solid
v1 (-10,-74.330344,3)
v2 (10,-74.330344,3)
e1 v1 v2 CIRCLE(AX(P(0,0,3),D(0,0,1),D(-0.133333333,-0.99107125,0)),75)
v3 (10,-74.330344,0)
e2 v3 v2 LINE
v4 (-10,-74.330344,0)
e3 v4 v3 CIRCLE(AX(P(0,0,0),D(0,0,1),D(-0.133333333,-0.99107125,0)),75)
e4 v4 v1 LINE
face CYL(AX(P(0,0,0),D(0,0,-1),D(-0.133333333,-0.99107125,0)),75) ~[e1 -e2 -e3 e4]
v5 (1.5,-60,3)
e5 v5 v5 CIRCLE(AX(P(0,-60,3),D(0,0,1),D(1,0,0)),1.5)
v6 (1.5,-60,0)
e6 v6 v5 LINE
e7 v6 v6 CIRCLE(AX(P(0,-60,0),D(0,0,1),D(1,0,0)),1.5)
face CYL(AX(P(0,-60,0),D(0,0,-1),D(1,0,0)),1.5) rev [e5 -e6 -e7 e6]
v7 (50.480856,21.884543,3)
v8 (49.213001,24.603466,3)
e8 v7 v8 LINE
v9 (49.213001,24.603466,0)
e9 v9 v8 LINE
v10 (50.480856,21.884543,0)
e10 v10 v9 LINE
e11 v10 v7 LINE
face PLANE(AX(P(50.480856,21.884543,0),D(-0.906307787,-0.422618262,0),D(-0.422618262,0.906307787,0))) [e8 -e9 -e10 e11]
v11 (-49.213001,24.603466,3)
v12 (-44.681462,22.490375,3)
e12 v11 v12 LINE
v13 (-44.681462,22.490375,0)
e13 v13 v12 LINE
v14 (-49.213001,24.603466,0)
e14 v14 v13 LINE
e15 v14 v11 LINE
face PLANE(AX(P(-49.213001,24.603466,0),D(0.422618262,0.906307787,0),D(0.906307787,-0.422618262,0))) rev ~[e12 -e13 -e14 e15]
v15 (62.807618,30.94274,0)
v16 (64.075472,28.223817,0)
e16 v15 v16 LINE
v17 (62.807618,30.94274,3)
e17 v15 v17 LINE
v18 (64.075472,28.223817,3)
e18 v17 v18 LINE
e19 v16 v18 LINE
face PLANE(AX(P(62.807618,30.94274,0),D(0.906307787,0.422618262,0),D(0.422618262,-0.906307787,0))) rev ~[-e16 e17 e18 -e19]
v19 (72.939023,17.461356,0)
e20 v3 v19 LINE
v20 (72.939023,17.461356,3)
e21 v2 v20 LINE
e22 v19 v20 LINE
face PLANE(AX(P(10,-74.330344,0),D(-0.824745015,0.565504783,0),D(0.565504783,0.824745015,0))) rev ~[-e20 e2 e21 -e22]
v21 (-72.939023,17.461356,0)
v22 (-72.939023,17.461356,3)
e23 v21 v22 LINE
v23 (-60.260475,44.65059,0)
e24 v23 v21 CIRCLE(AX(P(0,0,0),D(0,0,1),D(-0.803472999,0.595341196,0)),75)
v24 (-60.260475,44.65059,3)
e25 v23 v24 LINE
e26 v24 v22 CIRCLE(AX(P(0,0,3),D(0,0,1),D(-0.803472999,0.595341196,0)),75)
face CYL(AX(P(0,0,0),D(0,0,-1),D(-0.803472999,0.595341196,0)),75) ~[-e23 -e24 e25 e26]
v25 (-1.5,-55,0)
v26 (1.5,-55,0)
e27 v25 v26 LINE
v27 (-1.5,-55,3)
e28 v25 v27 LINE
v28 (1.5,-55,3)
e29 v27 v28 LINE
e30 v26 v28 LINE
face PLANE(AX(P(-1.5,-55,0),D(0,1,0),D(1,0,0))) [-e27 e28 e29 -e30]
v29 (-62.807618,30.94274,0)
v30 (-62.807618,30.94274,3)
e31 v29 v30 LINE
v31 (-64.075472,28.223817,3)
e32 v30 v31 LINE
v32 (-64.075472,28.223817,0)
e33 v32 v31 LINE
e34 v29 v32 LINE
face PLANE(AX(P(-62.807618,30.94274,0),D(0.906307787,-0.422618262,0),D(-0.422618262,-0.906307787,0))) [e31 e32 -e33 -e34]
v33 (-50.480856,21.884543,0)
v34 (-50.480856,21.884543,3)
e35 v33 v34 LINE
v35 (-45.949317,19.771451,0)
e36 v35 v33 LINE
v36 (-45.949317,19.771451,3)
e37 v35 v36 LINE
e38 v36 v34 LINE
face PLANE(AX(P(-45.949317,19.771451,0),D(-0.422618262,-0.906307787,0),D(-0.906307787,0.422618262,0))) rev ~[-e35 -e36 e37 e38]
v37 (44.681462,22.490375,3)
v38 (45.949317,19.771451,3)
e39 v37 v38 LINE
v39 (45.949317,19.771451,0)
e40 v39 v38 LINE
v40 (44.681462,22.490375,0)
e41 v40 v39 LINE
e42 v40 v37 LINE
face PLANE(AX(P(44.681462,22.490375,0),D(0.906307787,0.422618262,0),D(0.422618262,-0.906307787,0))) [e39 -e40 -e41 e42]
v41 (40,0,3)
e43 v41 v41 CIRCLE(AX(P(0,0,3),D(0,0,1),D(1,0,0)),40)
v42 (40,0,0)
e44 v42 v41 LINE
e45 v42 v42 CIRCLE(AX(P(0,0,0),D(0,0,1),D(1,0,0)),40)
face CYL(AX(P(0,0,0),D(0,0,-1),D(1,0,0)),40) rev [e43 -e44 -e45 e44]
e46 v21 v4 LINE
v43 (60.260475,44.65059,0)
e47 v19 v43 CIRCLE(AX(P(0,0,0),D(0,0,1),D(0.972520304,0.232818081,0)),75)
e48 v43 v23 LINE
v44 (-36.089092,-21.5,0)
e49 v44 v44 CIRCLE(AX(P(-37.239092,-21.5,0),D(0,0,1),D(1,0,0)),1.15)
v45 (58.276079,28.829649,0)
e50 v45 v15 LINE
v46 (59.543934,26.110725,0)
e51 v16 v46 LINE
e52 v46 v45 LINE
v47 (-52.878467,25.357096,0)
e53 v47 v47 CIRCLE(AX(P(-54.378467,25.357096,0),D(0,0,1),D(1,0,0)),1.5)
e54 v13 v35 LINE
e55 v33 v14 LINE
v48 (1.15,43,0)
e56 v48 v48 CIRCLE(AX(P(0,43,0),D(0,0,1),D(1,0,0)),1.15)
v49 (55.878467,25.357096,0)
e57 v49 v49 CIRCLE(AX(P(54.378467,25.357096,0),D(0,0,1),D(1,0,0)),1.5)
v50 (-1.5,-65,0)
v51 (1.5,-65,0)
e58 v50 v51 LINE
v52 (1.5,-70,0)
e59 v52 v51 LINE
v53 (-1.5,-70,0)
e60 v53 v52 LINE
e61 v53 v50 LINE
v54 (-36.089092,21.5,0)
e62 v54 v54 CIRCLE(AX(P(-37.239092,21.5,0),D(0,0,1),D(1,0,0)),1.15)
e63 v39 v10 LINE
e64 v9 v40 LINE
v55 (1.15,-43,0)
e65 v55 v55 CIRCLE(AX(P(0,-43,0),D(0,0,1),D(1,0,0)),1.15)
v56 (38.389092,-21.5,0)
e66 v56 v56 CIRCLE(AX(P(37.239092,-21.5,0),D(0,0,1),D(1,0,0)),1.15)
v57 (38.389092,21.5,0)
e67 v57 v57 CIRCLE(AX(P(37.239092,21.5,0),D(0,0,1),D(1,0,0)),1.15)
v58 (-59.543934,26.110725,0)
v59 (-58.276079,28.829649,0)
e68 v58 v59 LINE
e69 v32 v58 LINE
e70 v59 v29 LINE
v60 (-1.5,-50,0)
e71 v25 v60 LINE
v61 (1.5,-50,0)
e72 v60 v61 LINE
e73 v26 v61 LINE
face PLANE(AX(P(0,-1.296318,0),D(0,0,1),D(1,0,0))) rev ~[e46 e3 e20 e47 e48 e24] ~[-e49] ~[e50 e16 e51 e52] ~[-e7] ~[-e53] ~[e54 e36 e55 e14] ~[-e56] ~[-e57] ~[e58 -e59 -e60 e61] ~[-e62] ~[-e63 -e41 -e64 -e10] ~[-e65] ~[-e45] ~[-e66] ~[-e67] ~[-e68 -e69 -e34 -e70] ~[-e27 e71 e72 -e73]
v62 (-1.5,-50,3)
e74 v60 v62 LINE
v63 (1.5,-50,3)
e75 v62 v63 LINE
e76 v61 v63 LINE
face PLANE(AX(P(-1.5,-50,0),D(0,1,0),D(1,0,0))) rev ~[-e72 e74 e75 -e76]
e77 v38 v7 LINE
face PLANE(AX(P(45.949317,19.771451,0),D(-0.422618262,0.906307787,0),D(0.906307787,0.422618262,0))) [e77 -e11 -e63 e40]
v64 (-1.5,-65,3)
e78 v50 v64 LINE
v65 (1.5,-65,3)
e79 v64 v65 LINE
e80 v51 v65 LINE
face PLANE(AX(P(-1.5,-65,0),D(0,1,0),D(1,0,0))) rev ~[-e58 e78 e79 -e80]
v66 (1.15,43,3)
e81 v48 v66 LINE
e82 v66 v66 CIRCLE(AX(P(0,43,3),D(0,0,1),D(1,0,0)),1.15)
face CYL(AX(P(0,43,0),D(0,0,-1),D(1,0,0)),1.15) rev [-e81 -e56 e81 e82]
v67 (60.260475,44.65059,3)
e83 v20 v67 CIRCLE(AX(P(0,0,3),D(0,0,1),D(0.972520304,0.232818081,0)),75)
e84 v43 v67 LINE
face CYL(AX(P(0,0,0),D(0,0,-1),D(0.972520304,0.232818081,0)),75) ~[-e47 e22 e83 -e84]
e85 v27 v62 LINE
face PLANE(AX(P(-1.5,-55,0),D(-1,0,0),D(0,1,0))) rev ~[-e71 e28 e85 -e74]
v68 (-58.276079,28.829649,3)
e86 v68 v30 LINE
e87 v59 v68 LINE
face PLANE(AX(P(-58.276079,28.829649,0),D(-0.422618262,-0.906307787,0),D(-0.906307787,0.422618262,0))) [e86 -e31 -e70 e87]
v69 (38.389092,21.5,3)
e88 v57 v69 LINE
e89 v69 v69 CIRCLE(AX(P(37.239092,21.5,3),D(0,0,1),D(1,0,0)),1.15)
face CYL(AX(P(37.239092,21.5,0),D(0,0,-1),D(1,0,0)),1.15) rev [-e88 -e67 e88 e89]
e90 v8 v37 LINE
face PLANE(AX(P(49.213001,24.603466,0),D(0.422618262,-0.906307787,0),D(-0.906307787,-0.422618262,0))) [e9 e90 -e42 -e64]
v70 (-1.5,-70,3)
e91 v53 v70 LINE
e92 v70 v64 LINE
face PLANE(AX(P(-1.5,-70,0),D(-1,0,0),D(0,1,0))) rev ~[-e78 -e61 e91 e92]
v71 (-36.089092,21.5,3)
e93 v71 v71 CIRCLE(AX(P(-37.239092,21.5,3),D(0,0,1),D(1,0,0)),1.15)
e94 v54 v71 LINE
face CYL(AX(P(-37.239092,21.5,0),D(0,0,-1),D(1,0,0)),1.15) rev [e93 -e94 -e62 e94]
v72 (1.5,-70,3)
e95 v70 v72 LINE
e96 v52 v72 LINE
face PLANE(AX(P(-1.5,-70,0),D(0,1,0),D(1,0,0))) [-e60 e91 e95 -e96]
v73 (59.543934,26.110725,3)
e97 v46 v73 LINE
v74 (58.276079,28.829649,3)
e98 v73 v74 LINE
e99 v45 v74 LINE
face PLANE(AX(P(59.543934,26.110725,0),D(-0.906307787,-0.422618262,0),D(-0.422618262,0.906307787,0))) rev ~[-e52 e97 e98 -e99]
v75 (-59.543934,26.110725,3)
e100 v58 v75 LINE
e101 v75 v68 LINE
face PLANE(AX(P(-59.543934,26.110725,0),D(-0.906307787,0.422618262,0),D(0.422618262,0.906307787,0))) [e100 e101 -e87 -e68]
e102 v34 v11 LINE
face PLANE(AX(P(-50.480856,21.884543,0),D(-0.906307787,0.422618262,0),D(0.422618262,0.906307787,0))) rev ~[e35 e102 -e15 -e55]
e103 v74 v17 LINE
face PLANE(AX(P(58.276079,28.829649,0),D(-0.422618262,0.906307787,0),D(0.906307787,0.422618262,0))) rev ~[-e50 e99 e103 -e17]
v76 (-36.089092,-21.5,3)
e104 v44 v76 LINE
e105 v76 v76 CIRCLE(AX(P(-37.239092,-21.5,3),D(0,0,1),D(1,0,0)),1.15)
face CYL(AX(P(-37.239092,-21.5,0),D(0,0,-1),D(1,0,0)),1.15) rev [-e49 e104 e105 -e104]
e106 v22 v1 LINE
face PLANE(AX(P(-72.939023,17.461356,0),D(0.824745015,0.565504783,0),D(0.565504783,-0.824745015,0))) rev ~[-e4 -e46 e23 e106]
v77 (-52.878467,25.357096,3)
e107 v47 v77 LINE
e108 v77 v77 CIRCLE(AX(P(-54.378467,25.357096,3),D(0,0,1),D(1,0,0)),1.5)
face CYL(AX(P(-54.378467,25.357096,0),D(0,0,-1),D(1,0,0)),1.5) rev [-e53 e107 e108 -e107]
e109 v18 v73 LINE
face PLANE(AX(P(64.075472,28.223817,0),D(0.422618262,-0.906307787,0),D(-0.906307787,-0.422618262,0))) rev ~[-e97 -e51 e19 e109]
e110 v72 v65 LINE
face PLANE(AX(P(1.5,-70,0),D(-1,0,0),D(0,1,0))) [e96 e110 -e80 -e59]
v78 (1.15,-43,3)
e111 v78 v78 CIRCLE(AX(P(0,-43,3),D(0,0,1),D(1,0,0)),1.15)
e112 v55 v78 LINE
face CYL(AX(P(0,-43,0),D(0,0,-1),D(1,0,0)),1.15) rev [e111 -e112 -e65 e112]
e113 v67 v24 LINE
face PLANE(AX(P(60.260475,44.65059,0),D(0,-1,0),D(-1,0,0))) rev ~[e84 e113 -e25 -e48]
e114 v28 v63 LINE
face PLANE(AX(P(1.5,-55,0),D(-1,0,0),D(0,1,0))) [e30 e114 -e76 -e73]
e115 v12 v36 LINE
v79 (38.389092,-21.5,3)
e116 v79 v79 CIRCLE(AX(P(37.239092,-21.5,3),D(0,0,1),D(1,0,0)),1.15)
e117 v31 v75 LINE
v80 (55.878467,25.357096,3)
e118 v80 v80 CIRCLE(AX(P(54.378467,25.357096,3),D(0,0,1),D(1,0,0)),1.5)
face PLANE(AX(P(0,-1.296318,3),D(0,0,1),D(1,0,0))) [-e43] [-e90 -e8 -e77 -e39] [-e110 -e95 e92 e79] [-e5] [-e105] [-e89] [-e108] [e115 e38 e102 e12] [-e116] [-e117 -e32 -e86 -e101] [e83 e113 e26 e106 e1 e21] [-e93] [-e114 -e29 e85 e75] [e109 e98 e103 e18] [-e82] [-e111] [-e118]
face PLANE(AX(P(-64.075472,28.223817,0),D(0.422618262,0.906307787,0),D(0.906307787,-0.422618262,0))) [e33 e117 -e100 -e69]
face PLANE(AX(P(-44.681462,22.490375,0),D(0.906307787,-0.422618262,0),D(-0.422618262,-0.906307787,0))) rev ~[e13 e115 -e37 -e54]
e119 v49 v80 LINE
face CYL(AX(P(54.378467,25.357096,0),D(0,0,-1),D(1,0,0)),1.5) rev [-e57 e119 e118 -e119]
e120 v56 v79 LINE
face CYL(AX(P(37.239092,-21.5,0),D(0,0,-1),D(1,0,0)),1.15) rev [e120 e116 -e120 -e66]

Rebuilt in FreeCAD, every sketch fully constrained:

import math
import FreeCAD as App
import Part
import Sketcher

V = App.Vector
Q = App.Units.Quantity


def add_polygon(sketch, points):
    """Adds a closed chain of lines whose ends are joined by coincident constraints."""
    first, n = sketch.GeometryCount, len(points)
    for a, b in zip(points, points[1:] + points[:1]):
        sketch.addGeometry(Part.LineSegment(App.Vector(*a, 0), App.Vector(*b, 0)), False)
    for i in range(n):
        sketch.addConstraint(Sketcher.Constraint("Coincident", first + i, 2, first + (i + 1) % n, 1))

doc = App.newDocument("Part")
body = doc.addObject("PartDesign::Body", "Body")

# Sketch on XY plane
sketch1 = body.newObject("Sketcher::SketchObject", "Sketch")
sketch1.AttachmentSupport = (doc.getObject("XY_Plane"), [""])
sketch1.MapMode = "FlatFace"
sketch1.addGeometry(Part.LineSegment(V(-72.939023, 17.461356, 0), V(-10, -74.330344, 0)), False)  # 0
sketch1.addGeometry(Part.ArcOfCircle(Part.Circle(V(0, 0, 0), V(0, 0, 1), 75), math.radians(-97.662256), math.radians(-82.337744)), False)  # 1
sketch1.addGeometry(Part.LineSegment(V(10, -74.330344, 0), V(72.939023, 17.461356, 0)), False)  # 2
sketch1.addGeometry(Part.ArcOfCircle(Part.Circle(V(0, 0, 0), V(0, 0, 1), 75), math.radians(13.463041), math.radians(36.536959)), False)  # 3
sketch1.addGeometry(Part.LineSegment(V(60.260475, 44.65059, 0), V(-60.260475, 44.65059, 0)), False)  # 4
sketch1.addGeometry(Part.ArcOfCircle(Part.Circle(V(0, 0, 0), V(0, 0, 1), 75), math.radians(143.463041), math.radians(166.536959)), False)  # 5
sketch1.addGeometry(Part.Circle(V(-37.239092, -21.5, 0), V(0, 0, 1), 1.15), False)  # 6
add_polygon(sketch1, [(1.5, -70), (-1.5, -70), (-1.5, -65), (1.5, -65)])  # lines 7-10
sketch1.addGeometry(Part.Circle(V(0, -60, 0), V(0, 0, 1), 1.5), False)  # 11
add_polygon(sketch1, [(1.5, -55), (-1.5, -55), (-1.5, -50), (1.5, -50)])  # lines 12-15
sketch1.addGeometry(Part.Circle(V(0, -43, 0), V(0, 0, 1), 1.15), False)  # 16
sketch1.addGeometry(Part.Circle(V(37.239092, -21.5, 0), V(0, 0, 1), 1.15), False)  # 17
add_polygon(sketch1, [(-62.807618, 30.94274), (-58.276079, 28.829649), (-59.543934, 26.110725), (-64.075472, 28.223817)])  # lines 18-21
sketch1.addGeometry(Part.Circle(V(-54.378467, 25.357096, 0), V(0, 0, 1), 1.5), False)  # 22
add_polygon(sketch1, [(-50.480856, 21.884543), (-49.213001, 24.603466), (-44.681462, 22.490375), (-45.949317, 19.771451)])  # lines 23-26
sketch1.addGeometry(Part.Circle(V(-37.239092, 21.5, 0), V(0, 0, 1), 1.15), False)  # 27
sketch1.addGeometry(Part.Circle(V(0, 0, 0), V(0, 0, 1), 40), False)  # 28
sketch1.addGeometry(Part.Circle(V(0, 43, 0), V(0, 0, 1), 1.15), False)  # 29
sketch1.addGeometry(Part.Circle(V(37.239092, 21.5, 0), V(0, 0, 1), 1.15), False)  # 30
add_polygon(sketch1, [(44.681462, 22.490375), (49.213001, 24.603466), (50.480856, 21.884543), (45.949317, 19.771451)])  # lines 31-34
sketch1.addGeometry(Part.Circle(V(54.378467, 25.357096, 0), V(0, 0, 1), 1.5), False)  # 35
add_polygon(sketch1, [(59.543934, 26.110725), (58.276079, 28.829649), (62.807618, 30.94274), (64.075472, 28.223817)])  # lines 36-39
sketch1.addConstraint(Sketcher.Constraint("Coincident", 0, 2, 1, 1))
sketch1.addConstraint(Sketcher.Constraint("Coincident", 1, 2, 2, 1))
sketch1.addConstraint(Sketcher.Constraint("Coincident", 2, 2, 3, 1))
sketch1.addConstraint(Sketcher.Constraint("Coincident", 3, 2, 4, 1))
sketch1.addConstraint(Sketcher.Constraint("Coincident", 4, 2, 5, 1))
sketch1.addConstraint(Sketcher.Constraint("Coincident", 5, 2, 0, 1))
sketch1.addConstraint(Sketcher.Constraint("Horizontal", 4))
sketch1.addConstraint(Sketcher.Constraint("Horizontal", 7))
sketch1.addConstraint(Sketcher.Constraint("Vertical", 8))
sketch1.addConstraint(Sketcher.Constraint("Horizontal", 9))
sketch1.addConstraint(Sketcher.Constraint("Vertical", 10))
sketch1.addConstraint(Sketcher.Constraint("Horizontal", 12))
sketch1.addConstraint(Sketcher.Constraint("Vertical", 13))
sketch1.addConstraint(Sketcher.Constraint("Horizontal", 14))
sketch1.addConstraint(Sketcher.Constraint("Vertical", 15))
sketch1.addConstraint(Sketcher.Constraint("Coincident", 1, 3, -1, 1))
sketch1.addConstraint(Sketcher.Constraint("Coincident", 3, 3, -1, 1))
sketch1.addConstraint(Sketcher.Constraint("Coincident", 5, 3, -1, 1))
sketch1.addConstraint(Sketcher.Constraint("Coincident", 28, 3, -1, 1))
sketch1.addConstraint(Sketcher.Constraint("Equal", 1, 3))
sketch1.addConstraint(Sketcher.Constraint("Equal", 3, 5))
sketch1.addConstraint(Sketcher.Constraint("Equal", 6, 16))
sketch1.addConstraint(Sketcher.Constraint("Equal", 16, 17))
sketch1.addConstraint(Sketcher.Constraint("Equal", 11, 22))
sketch1.addConstraint(Sketcher.Constraint("Equal", 17, 27))
sketch1.addConstraint(Sketcher.Constraint("Equal", 27, 29))
sketch1.addConstraint(Sketcher.Constraint("Equal", 29, 30))
sketch1.addConstraint(Sketcher.Constraint("Equal", 22, 35))
sketch1.addConstraint(Sketcher.Constraint("Symmetric", 17, 3, 27, 3, -1, 1))
sketch1.addConstraint(Sketcher.Constraint("Symmetric", 16, 3, 29, 3, -1, 1))
sketch1.addConstraint(Sketcher.Constraint("Symmetric", 6, 3, 30, 3, -1, 1))
sketch1.addConstraint(Sketcher.Constraint("Symmetric", 6, 3, 17, 3, -2))
sketch1.addConstraint(Sketcher.Constraint("Symmetric", 22, 3, 35, 3, -2))
sketch1.addConstraint(Sketcher.Constraint("Symmetric", 23, 2, 31, 2, -2))
sketch1.addConstraint(Sketcher.Constraint("Symmetric", 26, 2, 32, 2, -2))
sketch1.addConstraint(Sketcher.Constraint("Symmetric", 25, 2, 33, 2, -2))
sketch1.addConstraint(Sketcher.Constraint("Symmetric", 24, 2, 34, 2, -2))
sketch1.addConstraint(Sketcher.Constraint("Symmetric", 18, 2, 36, 2, -2))
sketch1.addConstraint(Sketcher.Constraint("Symmetric", 21, 2, 37, 2, -2))
sketch1.addConstraint(Sketcher.Constraint("Symmetric", 20, 2, 38, 2, -2))
sketch1.addConstraint(Sketcher.Constraint("Symmetric", 19, 2, 39, 2, -2))
sketch1.addConstraint(Sketcher.Constraint("PointOnObject", 11, 3, -2))
sketch1.addConstraint(Sketcher.Constraint("PointOnObject", 16, 3, -2))
sketch1.addConstraint(Sketcher.Constraint("Perpendicular", 18, 19))
sketch1.addConstraint(Sketcher.Constraint("Perpendicular", 19, 20))
sketch1.addConstraint(Sketcher.Constraint("Perpendicular", 20, 21))
sketch1.addConstraint(Sketcher.Constraint("Parallel", 21, 23))
sketch1.addConstraint(Sketcher.Constraint("Perpendicular", 23, 24))
sketch1.addConstraint(Sketcher.Constraint("Perpendicular", 24, 25))
sketch1.addConstraint(Sketcher.Constraint("Perpendicular", 25, 26))
sketch1.addConstraint(Sketcher.Constraint("Horizontal", 0, 2, 1, 2))
sketch1.addConstraint(Sketcher.Constraint("Horizontal", 2, 2, 5, 2))
sketch1.addConstraint(Sketcher.Constraint("Vertical", 8, 2, 12, 2))
sketch1.addConstraint(Sketcher.Constraint("Vertical", 10, 2, 14, 2))
sketch1.addConstraint(Sketcher.Constraint("Equal", 10, 13))
sketch1.addConstraint(Sketcher.Constraint("Equal", 21, 23))
sketch1.addConstraint(Sketcher.Constraint("Equal", 20, 24))
sketch1.addConstraint(Sketcher.Constraint("Diameter", 11, Q("3 mm")))
sketch1.addConstraint(Sketcher.Constraint("Diameter", 28, Q("80 mm")))
sketch1.addConstraint(Sketcher.Constraint("Radius", 1, Q("75 mm")))
sketch1.addConstraint(Sketcher.Constraint("Diameter", 6, Q("2.3 mm")))
sketch1.addConstraint(Sketcher.Constraint("DistanceX", 7, 2, 7, 1, Q("3 mm")))
sketch1.addConstraint(Sketcher.Constraint("DistanceY", 8, 1, 8, 2, Q("5 mm")))
sketch1.addConstraint(Sketcher.Constraint("Angle", 18, Q("-25 deg")))
sketch1.addConstraint(Sketcher.Constraint("Distance", 18, Q("5 mm")))
sketch1.addConstraint(Sketcher.Constraint("Distance", 19, Q("3 mm")))
sketch1.addConstraint(Sketcher.Constraint("DistanceY", 11, 3, -1, 1, Q("60 mm")))
sketch1.addConstraint(Sketcher.Constraint("DistanceY", 16, 3, -1, 1, Q("43 mm")))
sketch1.addConstraint(Sketcher.Constraint("DistanceX", 0, 2, -1, 1, Q("10 mm")))
sketch1.addConstraint(Sketcher.Constraint("DistanceY", 7, 2, -1, 1, Q("70 mm")))
sketch1.addConstraint(Sketcher.Constraint("DistanceY", 12, 2, -1, 1, Q("55 mm")))
sketch1.addConstraint(Sketcher.Constraint("DistanceY", 6, 3, 27, 3, Q("43 mm")))
sketch1.addConstraint(Sketcher.Constraint("DistanceX", 7, 2, -1, 1, Q("1.5 mm")))
sketch1.addConstraint(Sketcher.Constraint("DistanceX", 23, 2, -1, 1, Q("49.213001 mm")))
sketch1.addConstraint(Sketcher.Constraint("DistanceX", 4, 2, 4, 1, Q("120.52095 mm")))
sketch1.addConstraint(Sketcher.Constraint("DistanceX", 18, 2, -1, 1, Q("58.276079 mm")))
sketch1.addConstraint(Sketcher.Constraint("DistanceY", -1, 1, 18, 2, Q("28.829649 mm")))
sketch1.addConstraint(Sketcher.Constraint("DistanceY", -1, 1, 25, 2, Q("19.771451 mm")))
sketch1.addConstraint(Sketcher.Constraint("DistanceY", 2, 2, 35, 3, Q("7.89574 mm")))
sketch1.addConstraint(Sketcher.Constraint("DistanceX", 30, 3, 2, 2, Q("35.69993 mm")))
sketch1.addConstraint(Sketcher.Constraint("DistanceX", 18, 2, 22, 3, Q("3.897612 mm")))
sketch1.addConstraint(Sketcher.Constraint("DistanceY", 22, 3, 19, 2, Q("0.75363 mm")))
pad1 = body.newObject("PartDesign::Pad", "Pad")
pad1.Profile = sketch1
pad1.Length = 3

doc.recompute()
